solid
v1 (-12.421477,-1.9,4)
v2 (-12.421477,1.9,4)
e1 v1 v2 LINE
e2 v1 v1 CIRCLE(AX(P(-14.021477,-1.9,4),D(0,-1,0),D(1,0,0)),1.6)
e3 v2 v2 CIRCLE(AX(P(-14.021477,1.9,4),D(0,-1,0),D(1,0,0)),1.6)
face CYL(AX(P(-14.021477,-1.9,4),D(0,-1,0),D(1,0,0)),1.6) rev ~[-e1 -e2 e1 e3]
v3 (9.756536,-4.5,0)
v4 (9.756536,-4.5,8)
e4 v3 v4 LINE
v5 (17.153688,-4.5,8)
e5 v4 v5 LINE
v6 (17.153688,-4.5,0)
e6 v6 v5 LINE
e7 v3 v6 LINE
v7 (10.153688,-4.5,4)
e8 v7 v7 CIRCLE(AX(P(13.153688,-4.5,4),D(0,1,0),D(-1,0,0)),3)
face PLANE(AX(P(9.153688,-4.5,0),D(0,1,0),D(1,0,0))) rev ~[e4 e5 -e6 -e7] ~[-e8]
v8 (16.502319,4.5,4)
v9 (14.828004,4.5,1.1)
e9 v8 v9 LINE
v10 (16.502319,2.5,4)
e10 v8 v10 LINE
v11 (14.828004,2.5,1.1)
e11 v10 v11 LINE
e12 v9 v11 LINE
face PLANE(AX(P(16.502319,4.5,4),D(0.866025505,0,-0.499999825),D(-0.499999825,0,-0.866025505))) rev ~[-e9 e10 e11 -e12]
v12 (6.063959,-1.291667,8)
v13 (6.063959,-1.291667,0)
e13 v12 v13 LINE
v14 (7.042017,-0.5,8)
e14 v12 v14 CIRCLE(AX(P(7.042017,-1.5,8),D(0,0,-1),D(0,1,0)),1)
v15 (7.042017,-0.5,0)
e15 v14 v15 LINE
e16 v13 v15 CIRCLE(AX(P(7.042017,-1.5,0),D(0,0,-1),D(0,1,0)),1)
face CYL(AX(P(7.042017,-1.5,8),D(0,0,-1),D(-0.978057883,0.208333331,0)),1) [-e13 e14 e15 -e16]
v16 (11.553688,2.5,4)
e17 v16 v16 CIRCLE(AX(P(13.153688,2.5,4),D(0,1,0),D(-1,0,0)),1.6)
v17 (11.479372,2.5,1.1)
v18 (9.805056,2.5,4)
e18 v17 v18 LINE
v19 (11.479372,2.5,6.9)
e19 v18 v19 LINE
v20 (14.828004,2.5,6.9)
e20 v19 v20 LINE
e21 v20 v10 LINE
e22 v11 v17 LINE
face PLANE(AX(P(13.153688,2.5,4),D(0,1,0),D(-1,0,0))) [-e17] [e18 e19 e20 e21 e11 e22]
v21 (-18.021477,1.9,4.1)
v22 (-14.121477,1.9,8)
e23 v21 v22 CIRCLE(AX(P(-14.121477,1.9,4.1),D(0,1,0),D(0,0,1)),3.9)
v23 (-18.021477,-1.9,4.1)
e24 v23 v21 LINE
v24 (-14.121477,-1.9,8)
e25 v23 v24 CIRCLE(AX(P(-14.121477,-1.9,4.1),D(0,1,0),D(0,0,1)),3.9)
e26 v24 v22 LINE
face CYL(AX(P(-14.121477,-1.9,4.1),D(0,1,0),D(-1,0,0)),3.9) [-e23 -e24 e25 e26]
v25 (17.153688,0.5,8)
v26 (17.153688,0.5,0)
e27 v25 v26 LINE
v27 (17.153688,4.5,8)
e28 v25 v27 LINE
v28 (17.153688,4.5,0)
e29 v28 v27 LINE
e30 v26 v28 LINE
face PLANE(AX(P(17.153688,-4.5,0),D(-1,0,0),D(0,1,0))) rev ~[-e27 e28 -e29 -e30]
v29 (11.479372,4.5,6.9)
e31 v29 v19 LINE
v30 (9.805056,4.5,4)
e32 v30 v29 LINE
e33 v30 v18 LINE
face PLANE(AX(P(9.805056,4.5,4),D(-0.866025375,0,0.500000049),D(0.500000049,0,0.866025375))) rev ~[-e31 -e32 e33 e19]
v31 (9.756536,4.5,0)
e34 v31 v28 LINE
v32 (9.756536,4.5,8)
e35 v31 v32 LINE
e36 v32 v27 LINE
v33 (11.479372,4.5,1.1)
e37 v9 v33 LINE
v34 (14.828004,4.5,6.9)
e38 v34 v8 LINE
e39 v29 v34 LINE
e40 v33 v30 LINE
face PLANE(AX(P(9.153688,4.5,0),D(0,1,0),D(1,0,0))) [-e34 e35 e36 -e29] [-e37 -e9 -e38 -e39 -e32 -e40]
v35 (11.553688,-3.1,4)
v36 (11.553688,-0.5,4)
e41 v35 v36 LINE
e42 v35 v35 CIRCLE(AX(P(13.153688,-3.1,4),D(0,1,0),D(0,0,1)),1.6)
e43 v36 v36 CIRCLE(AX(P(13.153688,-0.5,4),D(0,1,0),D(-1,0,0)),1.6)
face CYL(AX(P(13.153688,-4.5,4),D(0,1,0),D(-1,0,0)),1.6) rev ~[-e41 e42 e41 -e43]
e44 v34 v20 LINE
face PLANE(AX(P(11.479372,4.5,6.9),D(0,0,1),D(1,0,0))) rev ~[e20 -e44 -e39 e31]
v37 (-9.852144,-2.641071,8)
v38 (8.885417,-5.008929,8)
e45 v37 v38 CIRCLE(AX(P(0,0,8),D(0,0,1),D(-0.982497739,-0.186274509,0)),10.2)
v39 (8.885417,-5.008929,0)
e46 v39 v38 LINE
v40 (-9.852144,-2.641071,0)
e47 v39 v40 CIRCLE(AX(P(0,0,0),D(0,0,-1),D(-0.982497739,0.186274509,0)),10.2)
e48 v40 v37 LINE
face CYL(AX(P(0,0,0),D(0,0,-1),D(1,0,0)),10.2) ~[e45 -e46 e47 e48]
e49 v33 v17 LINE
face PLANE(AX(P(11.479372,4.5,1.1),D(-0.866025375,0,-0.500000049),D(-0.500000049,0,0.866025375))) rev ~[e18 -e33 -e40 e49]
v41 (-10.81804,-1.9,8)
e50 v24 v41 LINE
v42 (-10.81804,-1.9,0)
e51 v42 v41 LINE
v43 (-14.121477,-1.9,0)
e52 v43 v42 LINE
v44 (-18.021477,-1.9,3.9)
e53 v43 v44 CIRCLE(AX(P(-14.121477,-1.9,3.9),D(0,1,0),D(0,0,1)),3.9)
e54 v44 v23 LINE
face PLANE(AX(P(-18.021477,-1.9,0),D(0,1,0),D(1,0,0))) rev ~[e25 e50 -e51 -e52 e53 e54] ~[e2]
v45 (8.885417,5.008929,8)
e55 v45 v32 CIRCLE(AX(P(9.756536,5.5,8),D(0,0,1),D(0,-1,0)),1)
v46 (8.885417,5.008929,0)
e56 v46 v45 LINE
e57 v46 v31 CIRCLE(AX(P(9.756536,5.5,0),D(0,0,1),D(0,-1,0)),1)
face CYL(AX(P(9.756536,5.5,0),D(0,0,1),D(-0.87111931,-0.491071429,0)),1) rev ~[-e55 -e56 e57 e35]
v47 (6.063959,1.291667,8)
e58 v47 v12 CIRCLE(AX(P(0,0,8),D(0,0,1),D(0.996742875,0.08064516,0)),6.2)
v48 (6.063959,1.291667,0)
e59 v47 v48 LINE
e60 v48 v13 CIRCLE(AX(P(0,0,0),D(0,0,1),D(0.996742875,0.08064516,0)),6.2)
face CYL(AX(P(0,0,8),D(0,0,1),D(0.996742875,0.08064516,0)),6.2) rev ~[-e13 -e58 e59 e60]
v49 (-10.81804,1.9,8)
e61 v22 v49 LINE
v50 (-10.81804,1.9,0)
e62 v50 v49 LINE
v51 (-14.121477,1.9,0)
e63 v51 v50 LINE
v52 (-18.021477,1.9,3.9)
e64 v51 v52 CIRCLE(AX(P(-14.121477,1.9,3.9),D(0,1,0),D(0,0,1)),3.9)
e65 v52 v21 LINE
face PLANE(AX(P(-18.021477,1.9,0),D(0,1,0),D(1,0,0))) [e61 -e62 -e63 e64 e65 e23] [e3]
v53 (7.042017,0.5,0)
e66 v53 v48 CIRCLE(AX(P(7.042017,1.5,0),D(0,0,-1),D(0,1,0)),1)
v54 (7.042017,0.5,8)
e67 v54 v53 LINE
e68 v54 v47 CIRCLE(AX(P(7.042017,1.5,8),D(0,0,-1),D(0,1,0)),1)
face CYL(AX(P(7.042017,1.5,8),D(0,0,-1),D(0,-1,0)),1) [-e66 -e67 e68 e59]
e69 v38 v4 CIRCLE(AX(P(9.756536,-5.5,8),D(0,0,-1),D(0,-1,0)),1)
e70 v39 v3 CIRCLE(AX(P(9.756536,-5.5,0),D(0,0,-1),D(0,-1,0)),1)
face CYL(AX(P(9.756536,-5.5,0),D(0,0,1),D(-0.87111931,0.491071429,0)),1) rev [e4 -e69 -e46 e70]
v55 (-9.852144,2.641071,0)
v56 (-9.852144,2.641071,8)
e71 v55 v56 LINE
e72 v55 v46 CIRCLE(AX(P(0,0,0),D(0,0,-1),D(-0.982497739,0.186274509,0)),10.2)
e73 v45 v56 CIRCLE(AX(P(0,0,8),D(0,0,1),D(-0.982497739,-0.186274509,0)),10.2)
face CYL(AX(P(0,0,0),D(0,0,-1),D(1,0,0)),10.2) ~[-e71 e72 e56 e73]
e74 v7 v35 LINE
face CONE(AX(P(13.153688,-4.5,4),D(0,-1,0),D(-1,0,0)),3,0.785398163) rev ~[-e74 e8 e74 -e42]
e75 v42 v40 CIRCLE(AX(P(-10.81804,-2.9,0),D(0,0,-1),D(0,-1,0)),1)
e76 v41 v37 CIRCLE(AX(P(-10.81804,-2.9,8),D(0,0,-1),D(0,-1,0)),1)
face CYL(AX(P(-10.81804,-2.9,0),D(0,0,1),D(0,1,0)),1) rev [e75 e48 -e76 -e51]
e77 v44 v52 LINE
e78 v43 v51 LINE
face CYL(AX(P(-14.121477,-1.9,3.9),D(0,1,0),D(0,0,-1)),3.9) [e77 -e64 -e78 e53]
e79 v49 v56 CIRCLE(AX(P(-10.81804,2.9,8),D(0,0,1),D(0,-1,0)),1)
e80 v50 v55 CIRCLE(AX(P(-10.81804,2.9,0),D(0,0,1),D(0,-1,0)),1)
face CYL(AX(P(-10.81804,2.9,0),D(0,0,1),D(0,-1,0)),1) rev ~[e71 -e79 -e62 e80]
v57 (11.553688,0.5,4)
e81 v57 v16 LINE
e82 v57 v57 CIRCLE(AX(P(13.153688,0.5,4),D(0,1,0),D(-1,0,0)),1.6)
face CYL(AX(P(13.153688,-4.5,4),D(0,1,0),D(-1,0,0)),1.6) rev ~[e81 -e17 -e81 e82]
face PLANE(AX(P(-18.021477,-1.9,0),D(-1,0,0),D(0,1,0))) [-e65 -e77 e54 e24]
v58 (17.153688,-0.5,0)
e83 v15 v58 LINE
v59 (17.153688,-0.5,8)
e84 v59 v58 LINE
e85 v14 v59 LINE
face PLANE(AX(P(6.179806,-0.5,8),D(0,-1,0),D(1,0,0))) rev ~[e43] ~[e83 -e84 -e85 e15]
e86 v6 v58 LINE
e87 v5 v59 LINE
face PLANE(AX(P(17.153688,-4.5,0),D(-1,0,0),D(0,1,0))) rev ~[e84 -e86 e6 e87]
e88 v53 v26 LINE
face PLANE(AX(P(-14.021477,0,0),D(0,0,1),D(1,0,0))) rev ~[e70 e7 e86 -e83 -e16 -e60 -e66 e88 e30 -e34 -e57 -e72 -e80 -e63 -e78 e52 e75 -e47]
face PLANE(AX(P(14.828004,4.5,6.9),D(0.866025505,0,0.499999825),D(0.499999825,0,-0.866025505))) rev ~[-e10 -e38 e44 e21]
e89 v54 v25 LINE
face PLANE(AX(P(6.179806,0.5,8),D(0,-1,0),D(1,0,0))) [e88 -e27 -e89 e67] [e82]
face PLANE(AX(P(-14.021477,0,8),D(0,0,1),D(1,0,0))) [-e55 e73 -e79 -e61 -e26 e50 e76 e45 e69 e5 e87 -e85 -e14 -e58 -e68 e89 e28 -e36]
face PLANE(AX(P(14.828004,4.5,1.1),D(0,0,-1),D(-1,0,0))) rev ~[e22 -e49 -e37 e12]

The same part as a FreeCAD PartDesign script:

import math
import FreeCAD as App
import Part
import Sketcher
from FreeCAD import Vector
Q = App.Units.Quantity


def edges_at(feature, points):
    """Names of the edges that pass closest to the given points."""
    edges = feature.Shape.Edges
    near = lambda p: min(range(len(edges)), key=lambda i: edges[i].distToShape(Part.Vertex(*p))[0])
    return sorted({f"Edge{near(p) + 1}" for p in points})

doc = App.newDocument("Part")
body = doc.addObject("PartDesign::Body", "Body")

# Sketch on XY plane
sketch1 = body.newObject("Sketcher::SketchObject", "Sketch")
sketch1.AttachmentSupport = (doc.getObject("XY_Plane"), [""])
sketch1.MapMode = "FlatFace"
sketch1.addGeometry(Part.Circle(Vector(0, 0, 0), Vector(0, 0, 1), 10), False)
sketch1.addConstraint(Sketcher.Constraint("Coincident", 0, 3, -1, 1))
sketch1.addConstraint(Sketcher.Constraint("Diameter", 0, Q("20.4 mm")))
pad1 = body.newObject("PartDesign::Pad", "Pad")
pad1.Profile = sketch1
pad1.Length = 8

# Sketch on XY plane
sketch2 = body.newObject("Sketcher::SketchObject", "Sketch001")
sketch2.AttachmentSupport = (doc.getObject("XY_Plane"), [""])
sketch2.MapMode = "FlatFace"
sketch2.addGeometry(Part.LineSegment(Vector(-18, 1.9, 0), Vector(-18, -1.9, 0)), False)
sketch2.addGeometry(Part.LineSegment(Vector(-18, -1.9, 0), Vector(-10, -1.9, 0)), False)
sketch2.addGeometry(Part.LineSegment(Vector(-10, -1.9, 0), Vector(-10, 1.9, 0)), False)
sketch2.addGeometry(Part.LineSegment(Vector(-10, 1.9, 0), Vector(-18, 1.9, 0)), False)
sketch2.addConstraint(Sketcher.Constraint("Coincident", 0, 2, 1, 1))
sketch2.addConstraint(Sketcher.Constraint("Coincident", 1, 2, 2, 1))
sketch2.addConstraint(Sketcher.Constraint("Coincident", 2, 2, 3, 1))
sketch2.addConstraint(Sketcher.Constraint("Coincident", 3, 2, 0, 1))
sketch2.addConstraint(Sketcher.Constraint("Vertical", 0))
sketch2.addConstraint(Sketcher.Constraint("Horizontal", 1))
sketch2.addConstraint(Sketcher.Constraint("Vertical", 2))
sketch2.addConstraint(Sketcher.Constraint("Horizontal", 3))
sketch2.addConstraint(Sketcher.Constraint("DistanceX", 1, 1, 1, 2, Q("8 mm")))
sketch2.addConstraint(Sketcher.Constraint("DistanceY", 0, 2, 0, 1, Q("3.8 mm")))
sketch2.addConstraint(Sketcher.Constraint("DistanceY", 0, 2, -1, 1, Q("1.9 mm")))
sketch2.addConstraint(Sketcher.Constraint("DistanceX", 0, 2, -1, 1, Q("18.021477 mm")))
pad2 = body.newObject("PartDesign::Pad", "Pad001")
pad2.Profile = sketch2
pad2.Length = 8

# Sketch on XY plane
sketch3 = body.newObject("Sketcher::SketchObject", "Sketch002")
sketch3.AttachmentSupport = (doc.getObject("XY_Plane"), [""])
sketch3.MapMode = "FlatFace"
sketch3.addGeometry(Part.LineSegment(Vector(9, 4, 0), Vector(9, -4, 0)), False)
sketch3.addGeometry(Part.LineSegment(Vector(9, -4, 0), Vector(17, -4, 0)), False)
sketch3.addGeometry(Part.LineSegment(Vector(17, -4, 0), Vector(17, 4, 0)), False)
sketch3.addGeometry(Part.LineSegment(Vector(17, 4, 0), Vector(9, 4, 0)), False)
sketch3.addConstraint(Sketcher.Constraint("Coincident", 0, 2, 1, 1))
sketch3.addConstraint(Sketcher.Constraint("Coincident", 1, 2, 2, 1))
sketch3.addConstraint(Sketcher.Constraint("Coincident", 2, 2, 3, 1))
sketch3.addConstraint(Sketcher.Constraint("Coincident", 3, 2, 0, 1))
sketch3.addConstraint(Sketcher.Constraint("Vertical", 0))
sketch3.addConstraint(Sketcher.Constraint("Horizontal", 1))
sketch3.addConstraint(Sketcher.Constraint("Vertical", 2))
sketch3.addConstraint(Sketcher.Constraint("Horizontal", 3))
sketch3.addConstraint(Sketcher.Constraint("DistanceX", 1, 1, 1, 2, Q("8 mm")))
sketch3.addConstraint(Sketcher.Constraint("DistanceY", 0, 2, 0, 1, Q("9 mm")))
sketch3.addConstraint(Sketcher.Constraint("DistanceY", 0, 2, -1, 1, Q("4.5 mm")))
sketch3.addConstraint(Sketcher.Constraint("DistanceX", -1, 1, 0, 2, Q("9.153688 mm")))
pad3 = body.newObject("PartDesign::Pad", "Pad002")
pad3.Profile = sketch3
pad3.Length = 8

# Sketch on XY plane
sketch4 = body.newObject("Sketcher::SketchObject", "Sketch003")
sketch4.AttachmentSupport = (doc.getObject("XY_Plane"), [""])
sketch4.MapMode = "FlatFace"
sketch4.AttachmentOffset = App.Placement(Vector(0, 0, 8), App.Rotation())
sketch4.addGeometry(Part.ArcOfCircle(Part.Circle(Vector(0, 0, 0), Vector(0, 0, 1), 6.2), math.radians(5), math.radians(355)), False)
sketch4.addGeometry(Part.LineSegment(Vector(6.2, -0.5, 0), Vector(17.2, -0.5, 0)), False)
sketch4.addGeometry(Part.LineSegment(Vector(17.2, -0.5, 0), Vector(17.2, 0.5, 0)), False)
sketch4.addGeometry(Part.LineSegment(Vector(17.2, 0.5, 0), Vector(6.2, 0.5, 0)), False)
sketch4.addConstraint(Sketcher.Constraint("Coincident", 0, 2, 1, 1))
sketch4.addConstraint(Sketcher.Constraint("Coincident", 1, 2, 2, 1))
sketch4.addConstraint(Sketcher.Constraint("Coincident", 2, 2, 3, 1))
sketch4.addConstraint(Sketcher.Constraint("Coincident", 3, 2, 0, 1))
sketch4.addConstraint(Sketcher.Constraint("Horizontal", 1))
sketch4.addConstraint(Sketcher.Constraint("Vertical", 2))
sketch4.addConstraint(Sketcher.Constraint("Horizontal", 3))
sketch4.addConstraint(Sketcher.Constraint("Coincident", 0, 3, -1, 1))
sketch4.addConstraint(Sketcher.Constraint("Vertical", 0, 2, 3, 2))
sketch4.addConstraint(Sketcher.Constraint("Radius", 0, Q("6.2 mm")))
sketch4.addConstraint(Sketcher.Constraint("DistanceY", 2, 1, 2, 2, Q("1 mm")))
sketch4.addConstraint(Sketcher.Constraint("DistanceX", 1, 1, 1, 2, Q("10.973882 mm")))
pocket1 = body.newObject("PartDesign::Pocket", "Pocket")
pocket1.Profile = sketch4
pocket1.Type = "ThroughAll"

# Sketch on XZ plane
sketch5 = body.newObject("Sketcher::SketchObject", "Sketch004")
sketch5.AttachmentSupport = (doc.getObject("XZ_Plane"), [""])
sketch5.MapMode = "FlatFace"
sketch5.AttachmentOffset = App.Placement(Vector(0, 0, 1.9), App.Rotation())
sketch5.addGeometry(Part.Circle(Vector(-14, 4, 0), Vector(0, 0, 1), 1.6), False)
sketch5.addConstraint(Sketcher.Constraint("Diameter", 0, Q("3.2 mm")))
sketch5.addConstraint(Sketcher.Constraint("DistanceY", -1, 1, 0, 3, Q("4 mm")))
sketch5.addConstraint(Sketcher.Constraint("DistanceX", 0, 3, -1, 1, Q("14.021477 mm")))
pocket2 = body.newObject("PartDesign::Pocket", "Pocket001")
pocket2.Profile = sketch5
pocket2.Type = "ThroughAll"

# Sketch on XZ plane
sketch6 = body.newObject("Sketcher::SketchObject", "Sketch005")
sketch6.AttachmentSupport = (doc.getObject("XZ_Plane"), [""])
sketch6.MapMode = "FlatFace"
sketch6.AttachmentOffset = App.Placement(Vector(0, 0, 4.5), App.Rotation())
sketch6.addGeometry(Part.Circle(Vector(13.2, 4, 0), Vector(0, 0, 1), 1.6), False)
sketch6.addConstraint(Sketcher.Constraint("Diameter", 0, Q("3.2 mm")))
sketch6.addConstraint(Sketcher.Constraint("DistanceY", -1, 1, 0, 3, Q("4 mm")))
sketch6.addConstraint(Sketcher.Constraint("DistanceX", -1, 1, 0, 3, Q("13.153688 mm")))
doc.recompute()
hole = body.newObject("PartDesign::Hole", "Hole")
hole.Profile = sketch6
hole.ThreadType = "None"
hole.Diameter = 3.2
hole.DepthType = "ThroughAll"
hole.HoleCutType = "Countersink"
hole.HoleCutDiameter = 6
hole.HoleCutCountersinkAngle = 90

# Sketch on XZ plane
sketch7 = body.newObject("Sketcher::SketchObject", "Sketch006")
sketch7.AttachmentSupport = (doc.getObject("XZ_Plane"), [""])
sketch7.MapMode = "FlatFace"
sketch7.AttachmentOffset = App.Placement(Vector(0, 0, -4.5), App.Rotation())
sketch7.addGeometry(Part.LineSegment(Vector(9.8, 4, 0), Vector(11.5, 6.9, 0)), False)
sketch7.addGeometry(Part.LineSegment(Vector(11.5, 6.9, 0), Vector(14.8, 6.9, 0)), False)
sketch7.addGeometry(Part.LineSegment(Vector(14.8, 6.9, 0), Vector(16.5, 4, 0)), False)
sketch7.addGeometry(Part.LineSegment(Vector(16.5, 4, 0), Vector(14.8, 1.1, 0)), False)
sketch7.addGeometry(Part.LineSegment(Vector(14.8, 1.1, 0), Vector(11.5, 1.1, 0)), False)
sketch7.addGeometry(Part.LineSegment(Vector(11.5, 1.1, 0), Vector(9.8, 4, 0)), False)
sketch7.addConstraint(Sketcher.Constraint("Coincident", 0, 2, 1, 1))
sketch7.addConstraint(Sketcher.Constraint("Coincident", 1, 2, 2, 1))
sketch7.addConstraint(Sketcher.Constraint("Coincident", 2, 2, 3, 1))
sketch7.addConstraint(Sketcher.Constraint("Coincident", 3, 2, 4, 1))
sketch7.addConstraint(Sketcher.Constraint("Coincident", 4, 2, 5, 1))
sketch7.addConstraint(Sketcher.Constraint("Coincident", 5, 2, 0, 1))
sketch7.addConstraint(Sketcher.Constraint("Horizontal", 1))
sketch7.addConstraint(Sketcher.Constraint("Horizontal", 4))
sketch7.addConstraint(Sketcher.Constraint("Parallel", 0, 3))
sketch7.addConstraint(Sketcher.Constraint("Parallel", 2, 5))
sketch7.addConstraint(Sketcher.Constraint("Horizontal", 2, 2, 5, 2))
sketch7.addConstraint(Sketcher.Constraint("Vertical", 1, 2, 3, 2))
sketch7.addConstraint(Sketcher.Constraint("Vertical", 0, 2, 4, 2))
sketch7.addConstraint(Sketcher.Constraint("Angle", 0, Q("59.999997 deg")))
sketch7.addConstraint(Sketcher.Constraint("DistanceY", -1, 1, 2, 2, Q("4 mm")))
sketch7.addConstraint(Sketcher.Constraint("DistanceY", -1, 1, 0, 2, Q("6.9 mm")))
sketch7.addConstraint(Sketcher.Constraint("DistanceX", 1, 1, 1, 2, Q("3.348632 mm")))
sketch7.addConstraint(Sketcher.Constraint("DistanceX", -1, 1, 2, 2, Q("16.502319 mm")))
pocket3 = body.newObject("PartDesign::Pocket", "Pocket002")
pocket3.Profile = sketch7
pocket3.Length = 2
pocket3.Reversed = True
doc.recompute()

fillet = body.newObject("PartDesign::Fillet", "Fillet")
fillet.Base = (pocket3, edges_at(pocket3, [(-18.021, 0, 8), (-18.021, 0, 0)]))
fillet.Radius = 3.9
doc.recompute()

fillet2 = body.newObject("PartDesign::Fillet", "Fillet001")
fillet2.Base = (fillet, edges_at(fillet, [
    (9.154, 4.5, 4),
    (9.154, -4.5, 4),
    (-10.021, -1.9, 4),
    (-10.021, 1.9, 4),
    (6.18, -0.5, 4),
    (6.18, 0.5, 4),
]))
fillet2.Radius = 1

doc.recompute()
